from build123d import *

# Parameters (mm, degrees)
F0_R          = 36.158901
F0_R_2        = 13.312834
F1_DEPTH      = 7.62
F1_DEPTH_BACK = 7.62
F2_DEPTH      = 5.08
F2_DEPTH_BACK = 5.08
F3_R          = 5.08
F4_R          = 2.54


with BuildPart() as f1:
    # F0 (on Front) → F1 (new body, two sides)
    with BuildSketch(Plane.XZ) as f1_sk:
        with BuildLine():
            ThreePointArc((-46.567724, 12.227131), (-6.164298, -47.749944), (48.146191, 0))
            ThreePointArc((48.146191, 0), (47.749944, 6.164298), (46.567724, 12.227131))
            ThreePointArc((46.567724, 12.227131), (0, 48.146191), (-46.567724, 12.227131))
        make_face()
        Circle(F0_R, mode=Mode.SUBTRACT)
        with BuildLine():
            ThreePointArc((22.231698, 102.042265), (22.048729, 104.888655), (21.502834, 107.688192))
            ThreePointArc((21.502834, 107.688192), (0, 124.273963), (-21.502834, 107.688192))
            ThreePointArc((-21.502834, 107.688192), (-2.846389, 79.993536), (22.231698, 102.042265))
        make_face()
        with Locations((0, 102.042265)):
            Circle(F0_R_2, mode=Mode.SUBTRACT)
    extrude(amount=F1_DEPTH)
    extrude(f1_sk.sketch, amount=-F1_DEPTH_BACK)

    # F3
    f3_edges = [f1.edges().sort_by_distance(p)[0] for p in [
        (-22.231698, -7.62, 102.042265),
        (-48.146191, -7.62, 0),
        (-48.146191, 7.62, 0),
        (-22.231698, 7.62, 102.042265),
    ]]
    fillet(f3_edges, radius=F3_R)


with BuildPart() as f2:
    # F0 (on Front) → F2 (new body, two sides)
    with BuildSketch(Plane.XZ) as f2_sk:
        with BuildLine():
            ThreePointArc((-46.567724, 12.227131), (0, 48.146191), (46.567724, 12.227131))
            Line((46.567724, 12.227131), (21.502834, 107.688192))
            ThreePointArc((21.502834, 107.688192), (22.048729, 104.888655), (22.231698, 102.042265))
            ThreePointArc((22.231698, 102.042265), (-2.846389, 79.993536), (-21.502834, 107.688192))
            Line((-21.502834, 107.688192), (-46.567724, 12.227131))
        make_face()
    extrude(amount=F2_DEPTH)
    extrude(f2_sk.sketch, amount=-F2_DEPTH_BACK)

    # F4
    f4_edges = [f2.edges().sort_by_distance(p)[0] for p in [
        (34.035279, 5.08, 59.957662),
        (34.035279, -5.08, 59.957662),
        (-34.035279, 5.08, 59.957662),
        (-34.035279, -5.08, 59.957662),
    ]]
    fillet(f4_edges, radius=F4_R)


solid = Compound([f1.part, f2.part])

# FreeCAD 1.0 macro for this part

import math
import FreeCAD as App
import Part
import Sketcher
Q = App.Units.Quantity


def edges_at(feature, points):
    """Names of the edges that pass closest to the given points."""
    edges = feature.Shape.Edges
    near = lambda p: min(range(len(edges)), key=lambda i: edges[i].distToShape(Part.Vertex(*p))[0])
    return sorted({f"Edge{near(p) + 1}" for p in points})

doc = App.newDocument("Part")
body = doc.addObject("PartDesign::Body", "Body")
body.AllowCompound = True

# Sketch on XZ plane
sketch1 = body.newObject("Sketcher::SketchObject", "Sketch")
sketch1.AttachmentSupport = (doc.getObject("XZ_Plane"), [""])
sketch1.MapMode = "FlatFace"
sketch1.addGeometry([
    Part.ArcOfCircle(Part.Circle(App.Vector(0, 0, 0), App.Vector(0, 0, 1), 48.146191), math.radians(165.288123), math.radians(360.000001)),  # 0
    Part.ArcOfCircle(Part.Circle(App.Vector(0.000053, 0.000005, 0), App.Vector(0, 0, 1), 48.146138), math.radians(-0.000005), math.radians(14.711887)),  # 1
    Part.ArcOfCircle(Part.Circle(App.Vector(0, 0.000001, 0), App.Vector(0, 0, 1), 48.14619), math.radians(14.711875), math.radians(165.288125)),  # 2
    Part.Circle(App.Vector(0, 0, 0), App.Vector(0, 0, 1), 36.158901),  # 3
    Part.ArcOfCircle(Part.Circle(App.Vector(0.000021, 102.042265, 0), App.Vector(0, 0, 1), 22.231677), math.radians(0.000001), math.radians(14.711891)),  # 4
    Part.ArcOfCircle(Part.Circle(App.Vector(0, 102.042266, 0), App.Vector(0, 0, 1), 22.231697), math.radians(14.711874), math.radians(165.288126)),  # 5
    Part.ArcOfCircle(Part.Circle(App.Vector(0, 102.042265, 0), App.Vector(0, 0, 1), 22.231698), math.radians(165.288124), math.radians(360)),  # 6
    Part.Circle(App.Vector(0, 102.042265, 0), App.Vector(0, 0, 1), 13.312834),  # 7
], False)
sketch1.addConstraint([
    Sketcher.Constraint("Coincident", 0, 2, 1, 1),
    Sketcher.Constraint("Coincident", 1, 2, 2, 1),
    Sketcher.Constraint("Coincident", 2, 2, 0, 1),
    Sketcher.Constraint("Coincident", 4, 2, 5, 1),
    Sketcher.Constraint("Coincident", 5, 2, 6, 1),
    Sketcher.Constraint("Coincident", 6, 2, 4, 1),
    Sketcher.Constraint("Coincident", 0, 3, -1, 1),
    Sketcher.Constraint("Coincident", 2, 3, -1, 1),
    Sketcher.Constraint("Coincident", 3, 3, -1, 1),
    Sketcher.Constraint("Coincident", 6, 3, 5, 3),
    Sketcher.Constraint("Coincident", 7, 3, 5, 3),
    Sketcher.Constraint("PointOnObject", 5, 3, -2),
    Sketcher.Constraint("PointOnObject", 0, 2, -1),
    Sketcher.Constraint("Diameter", 3, Q("72.317802 mm")),
    Sketcher.Constraint("Diameter", 7, Q("26.625668 mm")),
    Sketcher.Constraint("Radius", 0, Q("48.146191 mm")),
    Sketcher.Constraint("Radius", 1, Q("48.146138 mm")),
    Sketcher.Constraint("Radius", 4, Q("22.231677 mm")),
    Sketcher.Constraint("Radius", 5, Q("22.231697 mm")),
    Sketcher.Constraint("DistanceY", -1, 1, 1, 2, Q("12.227131 mm")),
    Sketcher.Constraint("DistanceY", -1, 1, 2, 2, Q("12.227131 mm")),
    Sketcher.Constraint("DistanceY", -1, 1, 4, 2, Q("107.688192 mm")),
    Sketcher.Constraint("DistanceY", 1, 3, 4, 3, Q("102.04226 mm")),
    Sketcher.Constraint("DistanceX", 5, 2, 4, 2, Q("43.005668 mm")),
    Sketcher.Constraint("DistanceY", -1, 1, 6, 2, Q("102.042265 mm")),
])
pad1 = body.newObject("PartDesign::Pad", "Pad")
pad1.Profile = sketch1
pad1.Type = "TwoLengths"
pad1.Length = Q("0.3 in")
pad1.Length2 = Q("0.3 in")
doc.recompute()

fillet = body.newObject("PartDesign::Fillet", "Fillet")
fillet.Base = (pad1, edges_at(pad1, [
    (-2.846, -7.62, 79.994),
    (-6.164, -7.62, -47.75),
    (-6.164, 7.62, -47.75),
    (-2.846, 7.62, 79.994),
]))
fillet.Radius = Q("0.2 in")
body2 = doc.addObject("PartDesign::Body", "Body001")

# Sketch on XZ plane
sketch2 = body2.newObject("Sketcher::SketchObject", "Sketch001")
sketch2.AttachmentSupport = (doc.getObject("XZ_Plane001"), [""])
sketch2.MapMode = "FlatFace"
sketch2.addGeometry([
    Part.ArcOfCircle(Part.Circle(App.Vector(0, 0.000001, 0), App.Vector(0, 0, 1), 48.14619), math.radians(14.711875), math.radians(165.288125)),  # 0
    Part.LineSegment(App.Vector(46.567724, 12.227131, 0), App.Vector(21.502834, 107.688192, 0)),  # 1
    Part.ArcOfCircle(Part.Circle(App.Vector(0.000021, 102.042265, 0), App.Vector(0, 0, 1), 22.231677), math.radians(0.000001), math.radians(14.711891)),  # 2
    Part.ArcOfCircle(Part.Circle(App.Vector(0, 102.042265, 0), App.Vector(0, 0, 1), 22.231698), math.radians(165.288124), math.radians(360)),  # 3
    Part.LineSegment(App.Vector(-21.502834, 107.688192, 0), App.Vector(-46.567724, 12.227131, 0)),  # 4
], False)
sketch2.addConstraint([
    Sketcher.Constraint("Coincident", 0, 1, 1, 1),
    Sketcher.Constraint("Coincident", 1, 2, 2, 2),
    Sketcher.Constraint("Coincident", 2, 1, 3, 2),
    Sketcher.Constraint("Coincident", 3, 1, 4, 1),
    Sketcher.Constraint("Coincident", 4, 2, 0, 2),
    Sketcher.Constraint("Coincident", 0, 3, -1, 1),
    Sketcher.Constraint("PointOnObject", 3, 3, -2),
    Sketcher.Constraint("Radius", 0, Q("48.14619 mm")),
    Sketcher.Constraint("Radius", 2, Q("22.231677 mm")),
    Sketcher.Constraint("Radius", 3, Q("22.231698 mm")),
    Sketcher.Constraint("DistanceY", -1, 1, 0, 1, Q("12.227131 mm")),
    Sketcher.Constraint("DistanceY", -1, 1, 1, 2, Q("107.688192 mm")),
    Sketcher.Constraint("DistanceY", -1, 1, 3, 1, Q("107.688192 mm")),
    Sketcher.Constraint("DistanceY", -1, 1, 4, 2, Q("12.227131 mm")),
    Sketcher.Constraint("DistanceX", 1, 2, 0, 1, Q("25.06489 mm")),
    Sketcher.Constraint("DistanceX", 3, 1, 2, 1, Q("43.734532 mm")),
    Sketcher.Constraint("DistanceY", -1, 1, 2, 1, Q("102.042265 mm")),
])
pad2 = body2.newObject("PartDesign::Pad", "Pad001")
pad2.Profile = sketch2
pad2.Type = "TwoLengths"
pad2.Length = Q("0.2 in")
pad2.Length2 = Q("0.2 in")
doc.recompute()

fillet2 = body2.newObject("PartDesign::Fillet", "Fillet001")
fillet2.Base = (pad2, edges_at(pad2, [
    (34.035, 5.08, 59.958),
    (34.035, -5.08, 59.958),
    (-34.035, 5.08, 59.958),
    (-34.035, -5.08, 59.958),
]))
fillet2.Radius = Q("0.1 in")

doc.recompute()
